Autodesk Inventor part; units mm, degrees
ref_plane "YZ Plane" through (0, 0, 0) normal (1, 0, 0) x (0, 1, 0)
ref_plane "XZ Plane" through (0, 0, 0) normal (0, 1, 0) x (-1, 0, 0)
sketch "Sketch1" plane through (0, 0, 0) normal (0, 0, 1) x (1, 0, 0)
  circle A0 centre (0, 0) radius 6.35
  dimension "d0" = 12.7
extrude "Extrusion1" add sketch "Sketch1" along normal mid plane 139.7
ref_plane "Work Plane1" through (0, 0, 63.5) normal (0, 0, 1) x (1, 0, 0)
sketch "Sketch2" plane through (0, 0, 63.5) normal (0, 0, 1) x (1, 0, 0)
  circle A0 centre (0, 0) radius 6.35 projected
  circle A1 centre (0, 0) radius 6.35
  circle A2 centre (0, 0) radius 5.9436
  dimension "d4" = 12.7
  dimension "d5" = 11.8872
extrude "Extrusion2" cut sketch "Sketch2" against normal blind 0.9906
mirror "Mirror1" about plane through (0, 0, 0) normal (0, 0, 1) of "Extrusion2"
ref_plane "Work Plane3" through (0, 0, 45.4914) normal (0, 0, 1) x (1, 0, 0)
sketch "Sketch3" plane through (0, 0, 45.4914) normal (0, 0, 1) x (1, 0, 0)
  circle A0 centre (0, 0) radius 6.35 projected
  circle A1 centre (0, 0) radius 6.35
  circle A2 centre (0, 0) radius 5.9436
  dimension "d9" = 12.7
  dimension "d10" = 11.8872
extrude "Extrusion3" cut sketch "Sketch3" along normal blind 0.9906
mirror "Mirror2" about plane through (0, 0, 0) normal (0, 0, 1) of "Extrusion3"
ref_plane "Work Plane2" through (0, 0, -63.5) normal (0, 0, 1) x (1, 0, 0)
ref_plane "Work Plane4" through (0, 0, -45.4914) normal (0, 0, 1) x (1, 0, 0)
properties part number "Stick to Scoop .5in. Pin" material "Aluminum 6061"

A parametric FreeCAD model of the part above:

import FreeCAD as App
import Part
import Sketcher

V = App.Vector
Q = App.Units.Quantity

doc = App.newDocument("Part")
body = doc.addObject("PartDesign::Body", "Body")

# Sketch on XY plane
sketch1 = body.newObject("Sketcher::SketchObject", "Sketch")
sketch1.AttachmentSupport = (doc.getObject("XY_Plane"), [""])
sketch1.MapMode = "FlatFace"
sketch1.addGeometry(Part.Circle(V(0, 0, 0), V(0, 0, 1), 6), False)
sketch1.addConstraint([
    Sketcher.Constraint("Coincident", 0, 3, -1, 1),
    Sketcher.Constraint("Diameter", 0, Q("0.5 in")),
])
pad1 = body.newObject("PartDesign::Pad", "Pad")
pad1.Profile = sketch1
pad1.Length = Q("5.5 in")
pad1.Midplane = True

# Sketch on XY plane
sketch2 = body.newObject("Sketcher::SketchObject", "Sketch001")
sketch2.AttachmentSupport = (doc.getObject("XY_Plane"), [""])
sketch2.MapMode = "FlatFace"
sketch2.AttachmentOffset = App.Placement(V(0, 0, 2.5 * 25.4), App.Rotation())
sketch2.addGeometry([
    Part.Circle(V(0, 0, 0), V(0, 0, 1), 6),
    Part.Circle(V(0, 0, 0), V(0, 0, 1), 6),
], False)
sketch2.addConstraint([
    Sketcher.Constraint("Coincident", 0, 3, -1, 1),
    Sketcher.Constraint("Coincident", 1, 3, -1, 1),
    Sketcher.Constraint("Diameter", 0, Q("0.5 in")),
    Sketcher.Constraint("Diameter", 1, Q("0.468 in")),
])
pocket1 = body.newObject("PartDesign::Pocket", "Pocket")
pocket1.Profile = sketch2
pocket1.Length = Q("0.039 in")
doc.recompute()

mirrored = body.newObject("PartDesign::Mirrored", "Mirrored")
mirrored.Originals = [pocket1]
mirrored.MirrorPlane = (doc.getObject("XY_Plane"), [""])
body.Tip = mirrored

# Sketch on XY plane
sketch3 = body.newObject("Sketcher::SketchObject", "Sketch002")
sketch3.AttachmentSupport = (doc.getObject("XY_Plane"), [""])
sketch3.MapMode = "FlatFace"
sketch3.AttachmentOffset = App.Placement(V(0, 0, 1.791 * 25.4), App.Rotation())
sketch3.addGeometry([
    Part.Circle(V(0, 0, 0), V(0, 0, 1), 6),
    Part.Circle(V(0, 0, 0), V(0, 0, 1), 6),
], False)
sketch3.addConstraint([
    Sketcher.Constraint("Coincident", 0, 3, -1, 1),
    Sketcher.Constraint("Coincident", 1, 3, -1, 1),
    Sketcher.Constraint("Diameter", 0, Q("0.5 in")),
    Sketcher.Constraint("Diameter", 1, Q("0.468 in")),
])
pocket2 = body.newObject("PartDesign::Pocket", "Pocket001")
pocket2.Profile = sketch3
pocket2.Length = Q("0.039 in")
pocket2.Reversed = True
doc.recompute()

mirrored2 = body.newObject("PartDesign::Mirrored", "Mirrored001")
mirrored2.Originals = [pocket2]
mirrored2.MirrorPlane = (doc.getObject("XY_Plane"), [""])
body.Tip = mirrored2

doc.recompute()
